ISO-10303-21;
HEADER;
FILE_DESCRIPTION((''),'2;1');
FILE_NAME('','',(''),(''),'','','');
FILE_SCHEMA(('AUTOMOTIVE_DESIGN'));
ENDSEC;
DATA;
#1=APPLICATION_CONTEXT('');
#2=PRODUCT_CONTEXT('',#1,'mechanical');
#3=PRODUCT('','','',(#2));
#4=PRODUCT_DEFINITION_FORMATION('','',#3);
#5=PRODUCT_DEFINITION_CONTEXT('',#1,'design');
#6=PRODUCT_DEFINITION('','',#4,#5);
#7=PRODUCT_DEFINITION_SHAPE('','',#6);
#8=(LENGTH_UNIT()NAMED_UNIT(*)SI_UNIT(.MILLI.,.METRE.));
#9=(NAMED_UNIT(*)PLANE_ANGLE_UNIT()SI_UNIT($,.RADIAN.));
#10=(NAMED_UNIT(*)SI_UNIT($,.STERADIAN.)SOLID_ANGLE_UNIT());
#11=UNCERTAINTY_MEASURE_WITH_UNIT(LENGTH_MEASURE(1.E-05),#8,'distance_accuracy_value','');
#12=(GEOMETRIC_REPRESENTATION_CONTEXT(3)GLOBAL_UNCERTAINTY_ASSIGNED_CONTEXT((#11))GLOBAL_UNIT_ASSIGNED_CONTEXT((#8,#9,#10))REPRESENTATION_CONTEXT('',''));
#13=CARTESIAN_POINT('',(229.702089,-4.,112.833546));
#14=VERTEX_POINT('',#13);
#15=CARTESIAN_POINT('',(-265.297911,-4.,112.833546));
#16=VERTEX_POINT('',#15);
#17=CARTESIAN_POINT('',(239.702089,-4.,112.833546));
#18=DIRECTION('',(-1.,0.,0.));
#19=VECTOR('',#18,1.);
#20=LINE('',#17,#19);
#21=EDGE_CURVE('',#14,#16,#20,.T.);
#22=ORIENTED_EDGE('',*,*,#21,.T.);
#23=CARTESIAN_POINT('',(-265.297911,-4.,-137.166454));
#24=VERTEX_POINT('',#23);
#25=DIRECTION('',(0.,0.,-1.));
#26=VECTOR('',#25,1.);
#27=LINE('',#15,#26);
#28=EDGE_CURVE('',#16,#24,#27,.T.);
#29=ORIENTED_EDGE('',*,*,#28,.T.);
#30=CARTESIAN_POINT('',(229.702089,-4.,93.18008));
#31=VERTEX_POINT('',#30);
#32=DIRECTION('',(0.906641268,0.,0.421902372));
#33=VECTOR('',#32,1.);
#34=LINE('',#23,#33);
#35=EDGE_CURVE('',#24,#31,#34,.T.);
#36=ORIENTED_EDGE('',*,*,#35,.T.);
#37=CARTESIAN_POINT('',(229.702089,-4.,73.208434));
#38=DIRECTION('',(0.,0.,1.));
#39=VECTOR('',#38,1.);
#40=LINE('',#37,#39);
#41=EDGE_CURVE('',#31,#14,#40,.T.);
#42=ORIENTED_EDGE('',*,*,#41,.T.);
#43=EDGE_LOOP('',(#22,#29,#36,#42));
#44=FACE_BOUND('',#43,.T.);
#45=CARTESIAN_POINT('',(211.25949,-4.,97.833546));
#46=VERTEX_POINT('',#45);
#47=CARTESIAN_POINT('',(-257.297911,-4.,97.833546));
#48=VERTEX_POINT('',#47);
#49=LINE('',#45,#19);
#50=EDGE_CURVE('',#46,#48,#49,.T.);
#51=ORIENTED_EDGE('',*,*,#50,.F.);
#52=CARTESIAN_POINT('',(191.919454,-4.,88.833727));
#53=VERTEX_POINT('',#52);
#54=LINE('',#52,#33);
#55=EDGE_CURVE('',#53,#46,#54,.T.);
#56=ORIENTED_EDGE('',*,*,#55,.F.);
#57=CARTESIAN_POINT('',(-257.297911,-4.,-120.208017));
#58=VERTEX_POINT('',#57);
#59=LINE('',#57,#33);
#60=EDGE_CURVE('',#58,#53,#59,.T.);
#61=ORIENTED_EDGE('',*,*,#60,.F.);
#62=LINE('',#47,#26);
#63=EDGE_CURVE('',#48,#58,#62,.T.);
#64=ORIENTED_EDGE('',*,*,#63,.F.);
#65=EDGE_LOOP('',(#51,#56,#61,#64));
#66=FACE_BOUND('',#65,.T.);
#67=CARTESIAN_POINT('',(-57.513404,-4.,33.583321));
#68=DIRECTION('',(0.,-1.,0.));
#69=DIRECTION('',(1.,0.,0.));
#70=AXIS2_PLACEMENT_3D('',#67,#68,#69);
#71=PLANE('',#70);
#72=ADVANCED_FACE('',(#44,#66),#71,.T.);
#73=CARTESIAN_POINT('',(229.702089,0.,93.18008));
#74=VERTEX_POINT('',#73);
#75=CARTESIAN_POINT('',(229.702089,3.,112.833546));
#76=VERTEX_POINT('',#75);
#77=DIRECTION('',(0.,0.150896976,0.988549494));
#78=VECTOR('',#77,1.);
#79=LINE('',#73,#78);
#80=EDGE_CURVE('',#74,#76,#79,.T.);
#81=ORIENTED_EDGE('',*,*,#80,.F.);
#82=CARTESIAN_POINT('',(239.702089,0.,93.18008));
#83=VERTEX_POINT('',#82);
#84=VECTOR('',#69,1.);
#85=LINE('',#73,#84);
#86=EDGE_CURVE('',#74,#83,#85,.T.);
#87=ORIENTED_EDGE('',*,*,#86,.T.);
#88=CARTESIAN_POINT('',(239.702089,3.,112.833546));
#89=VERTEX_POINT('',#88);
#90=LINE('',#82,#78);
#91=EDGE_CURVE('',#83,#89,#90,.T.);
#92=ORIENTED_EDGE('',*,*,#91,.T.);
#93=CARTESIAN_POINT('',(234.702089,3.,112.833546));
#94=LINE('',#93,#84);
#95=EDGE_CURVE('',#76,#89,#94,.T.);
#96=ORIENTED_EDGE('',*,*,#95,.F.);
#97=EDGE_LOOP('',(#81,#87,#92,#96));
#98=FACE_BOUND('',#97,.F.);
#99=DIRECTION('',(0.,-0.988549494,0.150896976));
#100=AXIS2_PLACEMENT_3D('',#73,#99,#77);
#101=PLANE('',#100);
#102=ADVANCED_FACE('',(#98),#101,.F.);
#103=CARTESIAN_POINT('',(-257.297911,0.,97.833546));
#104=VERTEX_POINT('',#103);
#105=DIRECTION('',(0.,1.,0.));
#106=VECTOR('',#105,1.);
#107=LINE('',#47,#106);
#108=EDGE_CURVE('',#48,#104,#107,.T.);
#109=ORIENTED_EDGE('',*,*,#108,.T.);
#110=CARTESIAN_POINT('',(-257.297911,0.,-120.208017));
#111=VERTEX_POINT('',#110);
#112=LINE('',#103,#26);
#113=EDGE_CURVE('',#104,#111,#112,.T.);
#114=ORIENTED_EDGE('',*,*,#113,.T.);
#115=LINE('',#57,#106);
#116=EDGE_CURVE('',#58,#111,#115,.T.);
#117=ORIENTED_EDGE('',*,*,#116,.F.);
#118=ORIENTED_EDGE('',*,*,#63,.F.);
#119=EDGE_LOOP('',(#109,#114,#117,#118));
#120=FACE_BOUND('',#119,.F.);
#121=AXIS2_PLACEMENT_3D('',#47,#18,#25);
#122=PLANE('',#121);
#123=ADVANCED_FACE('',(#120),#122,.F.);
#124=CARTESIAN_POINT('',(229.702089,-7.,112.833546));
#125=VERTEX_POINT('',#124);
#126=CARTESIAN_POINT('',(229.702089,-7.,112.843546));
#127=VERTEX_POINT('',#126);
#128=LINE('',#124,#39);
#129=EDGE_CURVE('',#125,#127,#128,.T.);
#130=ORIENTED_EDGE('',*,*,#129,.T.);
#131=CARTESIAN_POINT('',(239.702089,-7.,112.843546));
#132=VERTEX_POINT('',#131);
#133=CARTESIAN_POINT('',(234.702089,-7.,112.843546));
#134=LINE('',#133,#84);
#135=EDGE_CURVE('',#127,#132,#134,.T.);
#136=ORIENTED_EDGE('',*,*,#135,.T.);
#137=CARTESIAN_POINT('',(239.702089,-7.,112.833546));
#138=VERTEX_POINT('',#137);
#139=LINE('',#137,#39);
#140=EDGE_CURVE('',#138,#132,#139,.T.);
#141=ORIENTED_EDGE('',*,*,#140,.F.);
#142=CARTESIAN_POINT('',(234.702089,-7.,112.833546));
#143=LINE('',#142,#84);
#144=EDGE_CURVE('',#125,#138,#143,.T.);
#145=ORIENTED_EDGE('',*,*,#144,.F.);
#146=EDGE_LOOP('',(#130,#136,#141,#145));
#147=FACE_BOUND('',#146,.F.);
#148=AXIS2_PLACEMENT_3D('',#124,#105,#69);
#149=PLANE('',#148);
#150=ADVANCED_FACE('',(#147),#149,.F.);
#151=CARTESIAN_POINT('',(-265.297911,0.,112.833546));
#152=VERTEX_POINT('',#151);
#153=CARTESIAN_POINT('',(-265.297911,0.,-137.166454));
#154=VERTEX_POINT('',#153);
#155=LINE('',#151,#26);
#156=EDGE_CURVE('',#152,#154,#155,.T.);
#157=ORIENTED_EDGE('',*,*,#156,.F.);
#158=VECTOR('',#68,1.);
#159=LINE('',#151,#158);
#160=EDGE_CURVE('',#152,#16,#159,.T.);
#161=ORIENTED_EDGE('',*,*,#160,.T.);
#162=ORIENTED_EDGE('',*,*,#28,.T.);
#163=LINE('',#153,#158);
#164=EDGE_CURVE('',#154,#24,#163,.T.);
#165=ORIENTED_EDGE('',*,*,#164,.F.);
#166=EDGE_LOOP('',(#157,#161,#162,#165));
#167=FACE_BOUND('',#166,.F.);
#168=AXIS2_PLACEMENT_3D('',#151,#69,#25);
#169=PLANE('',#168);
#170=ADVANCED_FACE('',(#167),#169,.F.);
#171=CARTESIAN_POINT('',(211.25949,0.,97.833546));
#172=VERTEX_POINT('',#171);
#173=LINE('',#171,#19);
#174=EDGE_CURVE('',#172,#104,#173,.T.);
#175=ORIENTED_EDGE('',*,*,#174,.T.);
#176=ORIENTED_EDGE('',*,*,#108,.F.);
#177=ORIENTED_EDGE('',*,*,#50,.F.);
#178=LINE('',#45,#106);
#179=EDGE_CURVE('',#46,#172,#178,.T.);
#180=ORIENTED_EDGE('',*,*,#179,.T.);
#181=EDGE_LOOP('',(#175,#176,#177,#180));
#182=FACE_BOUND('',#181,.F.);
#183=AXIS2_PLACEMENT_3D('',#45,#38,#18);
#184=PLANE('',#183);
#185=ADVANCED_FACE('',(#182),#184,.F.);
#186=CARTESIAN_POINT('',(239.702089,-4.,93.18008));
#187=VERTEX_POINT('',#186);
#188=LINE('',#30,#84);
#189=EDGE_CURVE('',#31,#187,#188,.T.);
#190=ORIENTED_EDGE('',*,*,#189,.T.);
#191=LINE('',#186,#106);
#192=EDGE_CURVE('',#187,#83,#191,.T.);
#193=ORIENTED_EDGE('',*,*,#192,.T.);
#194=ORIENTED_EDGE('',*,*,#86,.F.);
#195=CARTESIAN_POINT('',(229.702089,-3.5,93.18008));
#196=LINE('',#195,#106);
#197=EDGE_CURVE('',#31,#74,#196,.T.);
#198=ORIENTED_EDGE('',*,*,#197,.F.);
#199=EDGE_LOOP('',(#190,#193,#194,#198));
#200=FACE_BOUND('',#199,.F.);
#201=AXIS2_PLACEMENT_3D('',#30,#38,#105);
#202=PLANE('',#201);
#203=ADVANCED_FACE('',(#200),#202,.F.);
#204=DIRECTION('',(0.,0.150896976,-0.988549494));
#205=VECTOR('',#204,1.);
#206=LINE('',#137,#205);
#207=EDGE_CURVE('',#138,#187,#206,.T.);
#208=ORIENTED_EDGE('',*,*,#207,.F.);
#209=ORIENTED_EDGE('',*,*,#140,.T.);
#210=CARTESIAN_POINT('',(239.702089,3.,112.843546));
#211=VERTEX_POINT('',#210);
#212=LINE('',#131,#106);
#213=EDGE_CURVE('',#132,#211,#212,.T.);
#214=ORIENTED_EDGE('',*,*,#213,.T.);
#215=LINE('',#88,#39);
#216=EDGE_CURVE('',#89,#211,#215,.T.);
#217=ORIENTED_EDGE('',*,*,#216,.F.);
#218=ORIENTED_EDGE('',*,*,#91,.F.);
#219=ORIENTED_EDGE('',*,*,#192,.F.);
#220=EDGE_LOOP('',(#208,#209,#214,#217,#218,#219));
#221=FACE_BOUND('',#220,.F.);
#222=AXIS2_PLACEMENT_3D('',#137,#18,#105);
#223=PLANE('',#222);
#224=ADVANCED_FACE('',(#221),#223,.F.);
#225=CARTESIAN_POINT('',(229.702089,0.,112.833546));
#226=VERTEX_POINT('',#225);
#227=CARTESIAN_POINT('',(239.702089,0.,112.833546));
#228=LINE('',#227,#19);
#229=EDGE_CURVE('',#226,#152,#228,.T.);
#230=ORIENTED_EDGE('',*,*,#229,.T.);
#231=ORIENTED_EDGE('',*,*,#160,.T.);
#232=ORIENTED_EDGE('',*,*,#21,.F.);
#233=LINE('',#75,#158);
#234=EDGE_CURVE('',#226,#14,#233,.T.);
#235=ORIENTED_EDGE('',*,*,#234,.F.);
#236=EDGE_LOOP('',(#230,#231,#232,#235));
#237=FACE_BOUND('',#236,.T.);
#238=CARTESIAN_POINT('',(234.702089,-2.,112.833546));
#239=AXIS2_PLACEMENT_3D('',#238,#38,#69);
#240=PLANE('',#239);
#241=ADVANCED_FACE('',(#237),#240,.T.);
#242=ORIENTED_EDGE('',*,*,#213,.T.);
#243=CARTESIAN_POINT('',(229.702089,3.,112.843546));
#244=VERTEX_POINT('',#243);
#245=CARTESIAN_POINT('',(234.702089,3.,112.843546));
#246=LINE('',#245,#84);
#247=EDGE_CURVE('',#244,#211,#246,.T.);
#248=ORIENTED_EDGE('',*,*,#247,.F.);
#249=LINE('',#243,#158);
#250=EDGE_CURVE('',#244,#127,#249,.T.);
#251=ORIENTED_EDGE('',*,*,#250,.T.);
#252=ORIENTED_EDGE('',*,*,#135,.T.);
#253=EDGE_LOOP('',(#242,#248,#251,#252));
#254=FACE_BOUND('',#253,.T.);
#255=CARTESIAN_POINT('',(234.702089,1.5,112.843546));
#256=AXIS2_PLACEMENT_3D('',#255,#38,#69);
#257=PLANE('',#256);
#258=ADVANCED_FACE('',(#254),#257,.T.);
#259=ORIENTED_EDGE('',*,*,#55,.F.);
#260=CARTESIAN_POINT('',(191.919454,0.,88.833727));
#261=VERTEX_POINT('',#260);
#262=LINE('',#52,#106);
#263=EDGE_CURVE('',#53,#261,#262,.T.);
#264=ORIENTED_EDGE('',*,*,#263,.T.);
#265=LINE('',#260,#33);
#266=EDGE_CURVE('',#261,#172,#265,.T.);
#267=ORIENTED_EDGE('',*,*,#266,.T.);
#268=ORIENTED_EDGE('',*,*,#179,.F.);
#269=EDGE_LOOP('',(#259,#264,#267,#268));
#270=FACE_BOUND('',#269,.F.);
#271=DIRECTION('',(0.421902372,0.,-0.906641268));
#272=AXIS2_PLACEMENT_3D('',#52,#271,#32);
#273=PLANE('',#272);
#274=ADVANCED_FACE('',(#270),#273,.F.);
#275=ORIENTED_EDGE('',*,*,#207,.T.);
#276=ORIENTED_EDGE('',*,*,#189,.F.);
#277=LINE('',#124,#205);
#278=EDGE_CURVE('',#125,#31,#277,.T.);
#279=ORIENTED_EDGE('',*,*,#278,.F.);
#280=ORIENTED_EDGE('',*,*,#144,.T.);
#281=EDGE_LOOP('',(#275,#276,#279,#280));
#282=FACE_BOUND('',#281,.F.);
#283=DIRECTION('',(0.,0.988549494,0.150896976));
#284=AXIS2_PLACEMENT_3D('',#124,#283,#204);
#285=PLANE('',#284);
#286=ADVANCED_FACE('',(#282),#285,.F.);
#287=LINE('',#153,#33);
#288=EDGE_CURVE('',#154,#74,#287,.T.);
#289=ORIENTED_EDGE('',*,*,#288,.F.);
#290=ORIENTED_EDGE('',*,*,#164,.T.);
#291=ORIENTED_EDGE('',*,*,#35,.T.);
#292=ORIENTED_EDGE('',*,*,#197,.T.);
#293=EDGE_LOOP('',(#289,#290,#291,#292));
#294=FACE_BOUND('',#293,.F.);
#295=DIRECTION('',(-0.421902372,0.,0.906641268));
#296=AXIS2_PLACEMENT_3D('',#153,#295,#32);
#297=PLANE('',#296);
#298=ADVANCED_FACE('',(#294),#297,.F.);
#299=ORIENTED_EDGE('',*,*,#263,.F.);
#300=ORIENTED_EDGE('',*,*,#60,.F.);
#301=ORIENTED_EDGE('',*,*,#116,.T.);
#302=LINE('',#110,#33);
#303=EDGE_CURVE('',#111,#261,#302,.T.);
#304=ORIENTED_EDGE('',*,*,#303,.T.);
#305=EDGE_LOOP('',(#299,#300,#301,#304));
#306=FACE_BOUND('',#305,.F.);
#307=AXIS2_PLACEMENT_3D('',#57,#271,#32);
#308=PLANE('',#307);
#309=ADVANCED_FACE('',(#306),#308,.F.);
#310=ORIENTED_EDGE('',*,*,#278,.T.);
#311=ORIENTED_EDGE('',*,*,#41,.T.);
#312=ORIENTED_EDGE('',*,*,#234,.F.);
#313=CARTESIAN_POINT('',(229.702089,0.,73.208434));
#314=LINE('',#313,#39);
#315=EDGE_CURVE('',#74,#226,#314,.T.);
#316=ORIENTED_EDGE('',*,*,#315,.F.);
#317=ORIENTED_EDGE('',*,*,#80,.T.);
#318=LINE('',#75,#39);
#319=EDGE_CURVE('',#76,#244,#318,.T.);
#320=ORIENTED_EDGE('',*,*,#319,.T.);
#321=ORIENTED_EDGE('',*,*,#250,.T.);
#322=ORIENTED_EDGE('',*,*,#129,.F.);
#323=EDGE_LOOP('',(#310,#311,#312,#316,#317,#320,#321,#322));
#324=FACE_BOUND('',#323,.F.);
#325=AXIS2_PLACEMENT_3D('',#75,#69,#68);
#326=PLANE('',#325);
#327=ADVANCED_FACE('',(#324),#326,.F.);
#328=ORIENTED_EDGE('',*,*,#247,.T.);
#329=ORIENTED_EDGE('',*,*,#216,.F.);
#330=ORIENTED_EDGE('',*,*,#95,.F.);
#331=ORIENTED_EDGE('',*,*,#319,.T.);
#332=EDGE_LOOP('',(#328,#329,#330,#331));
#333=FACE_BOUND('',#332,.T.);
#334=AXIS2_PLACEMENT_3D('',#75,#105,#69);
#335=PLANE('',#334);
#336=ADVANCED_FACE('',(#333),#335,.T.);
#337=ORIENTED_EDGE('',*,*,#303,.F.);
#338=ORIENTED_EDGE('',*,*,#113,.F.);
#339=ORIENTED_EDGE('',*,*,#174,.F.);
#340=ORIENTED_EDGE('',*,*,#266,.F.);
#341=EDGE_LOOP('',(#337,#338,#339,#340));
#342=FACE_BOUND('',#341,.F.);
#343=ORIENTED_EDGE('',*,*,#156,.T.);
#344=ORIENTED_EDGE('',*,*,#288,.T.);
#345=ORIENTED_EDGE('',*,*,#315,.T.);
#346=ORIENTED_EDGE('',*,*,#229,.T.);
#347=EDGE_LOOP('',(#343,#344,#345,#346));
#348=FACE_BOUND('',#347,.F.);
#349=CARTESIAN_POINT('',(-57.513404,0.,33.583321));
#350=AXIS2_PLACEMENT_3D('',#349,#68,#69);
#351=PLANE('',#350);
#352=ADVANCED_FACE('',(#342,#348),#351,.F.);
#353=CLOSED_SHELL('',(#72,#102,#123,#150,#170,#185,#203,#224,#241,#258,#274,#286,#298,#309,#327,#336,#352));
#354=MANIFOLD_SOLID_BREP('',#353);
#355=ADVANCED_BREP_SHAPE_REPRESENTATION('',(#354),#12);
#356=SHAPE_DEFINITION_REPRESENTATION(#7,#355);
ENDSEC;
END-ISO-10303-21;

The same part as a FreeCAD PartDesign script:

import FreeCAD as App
import Part
import Sketcher
from FreeCAD import Vector
Q = App.Units.Quantity


def add_polygon(sketch, points):
    """Adds a closed chain of lines whose ends are joined by coincident constraints."""
    first, n = sketch.GeometryCount, len(points)
    for a, b in zip(points, points[1:] + points[:1]):
        sketch.addGeometry(Part.LineSegment(App.Vector(*a, 0), App.Vector(*b, 0)), False)
    for i in range(n):
        sketch.addConstraint(Sketcher.Constraint("Coincident", first + i, 2, first + (i + 1) % n, 1))

doc = App.newDocument("Part")
body = doc.addObject("PartDesign::Body", "Body")

# Sketch on XZ plane
sketch1 = doc.addObject("Sketcher::SketchObject", "Sketch")
body.addObject(sketch1)
sketch1.AttachmentSupport = (doc.XZ_Plane, [""])
sketch1.MapMode = "FlatFace"
add_polygon(sketch1, [(239.702089, 112.833546), (-265.297911, 112.833546), (-265.297911, -137.166454), (239.702089, 97.833546)])  # lines 0-3
sketch1.addConstraint(Sketcher.Constraint("Horizontal", 0))
sketch1.addConstraint(Sketcher.Constraint("Vertical", 1))
sketch1.addConstraint(Sketcher.Constraint("Vertical", 3))
sketch1.addConstraint(Sketcher.Constraint("DistanceX", 0, 2, 0, 1, Q("505 mm")))
sketch1.addConstraint(Sketcher.Constraint("DistanceY", 1, 2, 1, 1, Q("250 mm")))
sketch1.addConstraint(Sketcher.Constraint("DistanceY", 3, 1, 3, 2, Q("15 mm")))
sketch1.addConstraint(Sketcher.Constraint("DistanceX", 0, 2, -1, 1, Q("265.297911 mm")))
sketch1.addConstraint(Sketcher.Constraint("DistanceY", -1, 1, 0, 2, Q("112.833546 mm")))
pad1 = doc.addObject("PartDesign::Pad", "Pad")
body.addObject(pad1)
pad1.Profile = sketch1
pad1.Length = 4

# Sketch on XZ plane
sketch2 = doc.addObject("Sketcher::SketchObject", "Sketch001")
body.addObject(sketch2)
sketch2.AttachmentSupport = (doc.XZ_Plane, [""])
sketch2.MapMode = "FlatFace"
sketch2.AttachmentOffset = App.Placement(Vector(0, 0, 4), App.Rotation())
add_polygon(sketch2, [(211.25949, 97.833546), (-257.297911, 97.833546), (-257.297911, -120.208017), (191.919454, 88.833727)])  # lines 0-3
sketch2.addConstraint(Sketcher.Constraint("Horizontal", 0))
sketch2.addConstraint(Sketcher.Constraint("Vertical", 1))
sketch2.addConstraint(Sketcher.Constraint("Parallel", 2, 3))
sketch2.addConstraint(Sketcher.Constraint("DistanceX", 0, 2, 0, 1, Q("468.557401 mm")))
sketch2.addConstraint(Sketcher.Constraint("Distance", 2, Q("495.474208 mm")))
sketch2.addConstraint(Sketcher.Constraint("Distance", 3, Q("21.33152 mm")))
sketch2.addConstraint(Sketcher.Constraint("DistanceX", 0, 2, -1, 1, Q("257.297911 mm")))
sketch2.addConstraint(Sketcher.Constraint("DistanceY", -1, 1, 0, 2, Q("97.833546 mm")))
pocket1 = doc.addObject("PartDesign::Pocket", "Pocket")
body.addObject(pocket1)
pocket1.Profile = sketch2
pocket1.Length = 4

# Sketch on XY plane
sketch3 = doc.addObject("Sketcher::SketchObject", "Sketch002")
body.addObject(sketch3)
sketch3.AttachmentSupport = (doc.XY_Plane, [""])
sketch3.MapMode = "FlatFace"
sketch3.AttachmentOffset = App.Placement(Vector(0, 0, 112.833546), App.Rotation())
add_polygon(sketch3, [(229.702089, 3), (229.702089, -7), (239.702089, -7), (239.702089, 3)])  # lines 0-3
sketch3.addConstraint(Sketcher.Constraint("Vertical", 0))
sketch3.addConstraint(Sketcher.Constraint("Horizontal", 1))
sketch3.addConstraint(Sketcher.Constraint("Vertical", 2))
sketch3.addConstraint(Sketcher.Constraint("Horizontal", 3))
sketch3.addConstraint(Sketcher.Constraint("Equal", 3, 0))
sketch3.addConstraint(Sketcher.Constraint("DistanceX", 1, 1, 1, 2, Q("10 mm")))
sketch3.addConstraint(Sketcher.Constraint("DistanceY", 0, 2, -1, 1, Q("7 mm")))
sketch3.addConstraint(Sketcher.Constraint("DistanceX", -1, 1, 0, 2, Q("229.702089 mm")))
pad2 = doc.addObject("PartDesign::Pad", "Pad001")
body.addObject(pad2)
pad2.Profile = sketch3
pad2.Length = 24.7904
pad2.Reversed = True

# Sketch on YZ plane
sketch4 = doc.addObject("Sketcher::SketchObject", "Sketch003")
body.addObject(sketch4)
sketch4.AttachmentSupport = (doc.YZ_Plane, [""])
sketch4.MapMode = "FlatFace"
sketch4.AttachmentOffset = App.Placement(Vector(0, 0, 229.702089), App.Rotation())
add_polygon(sketch4, [(-7, 112.833546), (-4, 93.18008), (0, 93.18008), (3, 112.833546), (3, 88.043146), (-7, 88.043146)])  # lines 0-5
sketch4.addConstraint(Sketcher.Constraint("Horizontal", 1))
sketch4.addConstraint(Sketcher.Constraint("Vertical", 3))
sketch4.addConstraint(Sketcher.Constraint("Horizontal", 4))
sketch4.addConstraint(Sketcher.Constraint("Vertical", 5))
sketch4.addConstraint(Sketcher.Constraint("PointOnObject", 1, 2, -2))
sketch4.addConstraint(Sketcher.Constraint("Horizontal", 2, 2, 5, 2))
sketch4.addConstraint(Sketcher.Constraint("Equal", 0, 2))
sketch4.addConstraint(Sketcher.Constraint("DistanceX", 1, 1, 1, 2, Q("4 mm")))
sketch4.addConstraint(Sketcher.Constraint("DistanceX", 4, 2, 4, 1, Q("10 mm")))
sketch4.addConstraint(Sketcher.Constraint("DistanceY", 3, 2, 3, 1, Q("24.7904 mm")))
sketch4.addConstraint(Sketcher.Constraint("DistanceY", -1, 1, 0, 2, Q("93.18008 mm")))
sketch4.addConstraint(Sketcher.Constraint("Distance", 0, Q("19.881114 mm")))
pocket2 = doc.addObject("PartDesign::Pocket", "Pocket001")
body.addObject(pocket2)
pocket2.Profile = sketch4
pocket2.Length = 10
pocket2.Reversed = True

# Sketch on XY plane
sketch5 = doc.addObject("Sketcher::SketchObject", "Sketch004")
body.addObject(sketch5)
sketch5.AttachmentSupport = (doc.XY_Plane, [""])
sketch5.MapMode = "FlatFace"
sketch5.AttachmentOffset = App.Placement(Vector(0, 0, 112.833546), App.Rotation())
add_polygon(sketch5, [(229.702089, 3), (229.702089, -7), (239.702089, -7), (239.702089, 3)])  # lines 0-3
sketch5.addConstraint(Sketcher.Constraint("Vertical", 0))
sketch5.addConstraint(Sketcher.Constraint("Horizontal", 1))
sketch5.addConstraint(Sketcher.Constraint("Vertical", 2))
sketch5.addConstraint(Sketcher.Constraint("Horizontal", 3))
sketch5.addConstraint(Sketcher.Constraint("Equal", 3, 0))
sketch5.addConstraint(Sketcher.Constraint("DistanceX", 1, 1, 1, 2, Q("10 mm")))
sketch5.addConstraint(Sketcher.Constraint("DistanceY", 0, 2, -1, 1, Q("7 mm")))
sketch5.addConstraint(Sketcher.Constraint("DistanceX", -1, 1, 0, 2, Q("229.702089 mm")))
pad3 = doc.addObject("PartDesign::Pad", "Pad002")
body.addObject(pad3)
pad3.Profile = sketch5
pad3.Length = 0.01
body2 = doc.addObject("PartDesign::Body", "Body001")

# Sketch on XZ plane
sketch6 = doc.addObject("Sketcher::SketchObject", "Sketch005")
body2.addObject(sketch6)
sketch6.AttachmentSupport = (doc.getObject("XZ_Plane001"), [""])
sketch6.MapMode = "FlatFace"
sketch6.AttachmentOffset = App.Placement(Vector(0, 0, 4), App.Rotation())
add_polygon(sketch6, [(-265.297911, -137.166454), (241.73623, 93.18008), (229.702089, 93.18008)])  # lines 0-2
sketch6.addConstraint(Sketcher.Constraint("Horizontal", 1))
sketch6.addConstraint(Sketcher.Constraint("DistanceX", 2, 2, 1, 2, Q("495 mm")))
sketch6.addConstraint(Sketcher.Constraint("DistanceX", 1, 2, 1, 1, Q("12.034141 mm")))
sketch6.addConstraint(Sketcher.Constraint("Distance", 0, Q("556.90497 mm")))
sketch6.addConstraint(Sketcher.Constraint("DistanceX", -1, 1, 0, 2, Q("241.73623 mm")))
sketch6.addConstraint(Sketcher.Constraint("DistanceY", -1, 1, 0, 2, Q("93.18008 mm")))
pad4 = doc.addObject("PartDesign::Pad", "Pad003")
body2.addObject(pad4)
pad4.Profile = sketch6
pad4.Length = 4
pad4.Reversed = True
body2.Visibility = False

doc.recompute()
